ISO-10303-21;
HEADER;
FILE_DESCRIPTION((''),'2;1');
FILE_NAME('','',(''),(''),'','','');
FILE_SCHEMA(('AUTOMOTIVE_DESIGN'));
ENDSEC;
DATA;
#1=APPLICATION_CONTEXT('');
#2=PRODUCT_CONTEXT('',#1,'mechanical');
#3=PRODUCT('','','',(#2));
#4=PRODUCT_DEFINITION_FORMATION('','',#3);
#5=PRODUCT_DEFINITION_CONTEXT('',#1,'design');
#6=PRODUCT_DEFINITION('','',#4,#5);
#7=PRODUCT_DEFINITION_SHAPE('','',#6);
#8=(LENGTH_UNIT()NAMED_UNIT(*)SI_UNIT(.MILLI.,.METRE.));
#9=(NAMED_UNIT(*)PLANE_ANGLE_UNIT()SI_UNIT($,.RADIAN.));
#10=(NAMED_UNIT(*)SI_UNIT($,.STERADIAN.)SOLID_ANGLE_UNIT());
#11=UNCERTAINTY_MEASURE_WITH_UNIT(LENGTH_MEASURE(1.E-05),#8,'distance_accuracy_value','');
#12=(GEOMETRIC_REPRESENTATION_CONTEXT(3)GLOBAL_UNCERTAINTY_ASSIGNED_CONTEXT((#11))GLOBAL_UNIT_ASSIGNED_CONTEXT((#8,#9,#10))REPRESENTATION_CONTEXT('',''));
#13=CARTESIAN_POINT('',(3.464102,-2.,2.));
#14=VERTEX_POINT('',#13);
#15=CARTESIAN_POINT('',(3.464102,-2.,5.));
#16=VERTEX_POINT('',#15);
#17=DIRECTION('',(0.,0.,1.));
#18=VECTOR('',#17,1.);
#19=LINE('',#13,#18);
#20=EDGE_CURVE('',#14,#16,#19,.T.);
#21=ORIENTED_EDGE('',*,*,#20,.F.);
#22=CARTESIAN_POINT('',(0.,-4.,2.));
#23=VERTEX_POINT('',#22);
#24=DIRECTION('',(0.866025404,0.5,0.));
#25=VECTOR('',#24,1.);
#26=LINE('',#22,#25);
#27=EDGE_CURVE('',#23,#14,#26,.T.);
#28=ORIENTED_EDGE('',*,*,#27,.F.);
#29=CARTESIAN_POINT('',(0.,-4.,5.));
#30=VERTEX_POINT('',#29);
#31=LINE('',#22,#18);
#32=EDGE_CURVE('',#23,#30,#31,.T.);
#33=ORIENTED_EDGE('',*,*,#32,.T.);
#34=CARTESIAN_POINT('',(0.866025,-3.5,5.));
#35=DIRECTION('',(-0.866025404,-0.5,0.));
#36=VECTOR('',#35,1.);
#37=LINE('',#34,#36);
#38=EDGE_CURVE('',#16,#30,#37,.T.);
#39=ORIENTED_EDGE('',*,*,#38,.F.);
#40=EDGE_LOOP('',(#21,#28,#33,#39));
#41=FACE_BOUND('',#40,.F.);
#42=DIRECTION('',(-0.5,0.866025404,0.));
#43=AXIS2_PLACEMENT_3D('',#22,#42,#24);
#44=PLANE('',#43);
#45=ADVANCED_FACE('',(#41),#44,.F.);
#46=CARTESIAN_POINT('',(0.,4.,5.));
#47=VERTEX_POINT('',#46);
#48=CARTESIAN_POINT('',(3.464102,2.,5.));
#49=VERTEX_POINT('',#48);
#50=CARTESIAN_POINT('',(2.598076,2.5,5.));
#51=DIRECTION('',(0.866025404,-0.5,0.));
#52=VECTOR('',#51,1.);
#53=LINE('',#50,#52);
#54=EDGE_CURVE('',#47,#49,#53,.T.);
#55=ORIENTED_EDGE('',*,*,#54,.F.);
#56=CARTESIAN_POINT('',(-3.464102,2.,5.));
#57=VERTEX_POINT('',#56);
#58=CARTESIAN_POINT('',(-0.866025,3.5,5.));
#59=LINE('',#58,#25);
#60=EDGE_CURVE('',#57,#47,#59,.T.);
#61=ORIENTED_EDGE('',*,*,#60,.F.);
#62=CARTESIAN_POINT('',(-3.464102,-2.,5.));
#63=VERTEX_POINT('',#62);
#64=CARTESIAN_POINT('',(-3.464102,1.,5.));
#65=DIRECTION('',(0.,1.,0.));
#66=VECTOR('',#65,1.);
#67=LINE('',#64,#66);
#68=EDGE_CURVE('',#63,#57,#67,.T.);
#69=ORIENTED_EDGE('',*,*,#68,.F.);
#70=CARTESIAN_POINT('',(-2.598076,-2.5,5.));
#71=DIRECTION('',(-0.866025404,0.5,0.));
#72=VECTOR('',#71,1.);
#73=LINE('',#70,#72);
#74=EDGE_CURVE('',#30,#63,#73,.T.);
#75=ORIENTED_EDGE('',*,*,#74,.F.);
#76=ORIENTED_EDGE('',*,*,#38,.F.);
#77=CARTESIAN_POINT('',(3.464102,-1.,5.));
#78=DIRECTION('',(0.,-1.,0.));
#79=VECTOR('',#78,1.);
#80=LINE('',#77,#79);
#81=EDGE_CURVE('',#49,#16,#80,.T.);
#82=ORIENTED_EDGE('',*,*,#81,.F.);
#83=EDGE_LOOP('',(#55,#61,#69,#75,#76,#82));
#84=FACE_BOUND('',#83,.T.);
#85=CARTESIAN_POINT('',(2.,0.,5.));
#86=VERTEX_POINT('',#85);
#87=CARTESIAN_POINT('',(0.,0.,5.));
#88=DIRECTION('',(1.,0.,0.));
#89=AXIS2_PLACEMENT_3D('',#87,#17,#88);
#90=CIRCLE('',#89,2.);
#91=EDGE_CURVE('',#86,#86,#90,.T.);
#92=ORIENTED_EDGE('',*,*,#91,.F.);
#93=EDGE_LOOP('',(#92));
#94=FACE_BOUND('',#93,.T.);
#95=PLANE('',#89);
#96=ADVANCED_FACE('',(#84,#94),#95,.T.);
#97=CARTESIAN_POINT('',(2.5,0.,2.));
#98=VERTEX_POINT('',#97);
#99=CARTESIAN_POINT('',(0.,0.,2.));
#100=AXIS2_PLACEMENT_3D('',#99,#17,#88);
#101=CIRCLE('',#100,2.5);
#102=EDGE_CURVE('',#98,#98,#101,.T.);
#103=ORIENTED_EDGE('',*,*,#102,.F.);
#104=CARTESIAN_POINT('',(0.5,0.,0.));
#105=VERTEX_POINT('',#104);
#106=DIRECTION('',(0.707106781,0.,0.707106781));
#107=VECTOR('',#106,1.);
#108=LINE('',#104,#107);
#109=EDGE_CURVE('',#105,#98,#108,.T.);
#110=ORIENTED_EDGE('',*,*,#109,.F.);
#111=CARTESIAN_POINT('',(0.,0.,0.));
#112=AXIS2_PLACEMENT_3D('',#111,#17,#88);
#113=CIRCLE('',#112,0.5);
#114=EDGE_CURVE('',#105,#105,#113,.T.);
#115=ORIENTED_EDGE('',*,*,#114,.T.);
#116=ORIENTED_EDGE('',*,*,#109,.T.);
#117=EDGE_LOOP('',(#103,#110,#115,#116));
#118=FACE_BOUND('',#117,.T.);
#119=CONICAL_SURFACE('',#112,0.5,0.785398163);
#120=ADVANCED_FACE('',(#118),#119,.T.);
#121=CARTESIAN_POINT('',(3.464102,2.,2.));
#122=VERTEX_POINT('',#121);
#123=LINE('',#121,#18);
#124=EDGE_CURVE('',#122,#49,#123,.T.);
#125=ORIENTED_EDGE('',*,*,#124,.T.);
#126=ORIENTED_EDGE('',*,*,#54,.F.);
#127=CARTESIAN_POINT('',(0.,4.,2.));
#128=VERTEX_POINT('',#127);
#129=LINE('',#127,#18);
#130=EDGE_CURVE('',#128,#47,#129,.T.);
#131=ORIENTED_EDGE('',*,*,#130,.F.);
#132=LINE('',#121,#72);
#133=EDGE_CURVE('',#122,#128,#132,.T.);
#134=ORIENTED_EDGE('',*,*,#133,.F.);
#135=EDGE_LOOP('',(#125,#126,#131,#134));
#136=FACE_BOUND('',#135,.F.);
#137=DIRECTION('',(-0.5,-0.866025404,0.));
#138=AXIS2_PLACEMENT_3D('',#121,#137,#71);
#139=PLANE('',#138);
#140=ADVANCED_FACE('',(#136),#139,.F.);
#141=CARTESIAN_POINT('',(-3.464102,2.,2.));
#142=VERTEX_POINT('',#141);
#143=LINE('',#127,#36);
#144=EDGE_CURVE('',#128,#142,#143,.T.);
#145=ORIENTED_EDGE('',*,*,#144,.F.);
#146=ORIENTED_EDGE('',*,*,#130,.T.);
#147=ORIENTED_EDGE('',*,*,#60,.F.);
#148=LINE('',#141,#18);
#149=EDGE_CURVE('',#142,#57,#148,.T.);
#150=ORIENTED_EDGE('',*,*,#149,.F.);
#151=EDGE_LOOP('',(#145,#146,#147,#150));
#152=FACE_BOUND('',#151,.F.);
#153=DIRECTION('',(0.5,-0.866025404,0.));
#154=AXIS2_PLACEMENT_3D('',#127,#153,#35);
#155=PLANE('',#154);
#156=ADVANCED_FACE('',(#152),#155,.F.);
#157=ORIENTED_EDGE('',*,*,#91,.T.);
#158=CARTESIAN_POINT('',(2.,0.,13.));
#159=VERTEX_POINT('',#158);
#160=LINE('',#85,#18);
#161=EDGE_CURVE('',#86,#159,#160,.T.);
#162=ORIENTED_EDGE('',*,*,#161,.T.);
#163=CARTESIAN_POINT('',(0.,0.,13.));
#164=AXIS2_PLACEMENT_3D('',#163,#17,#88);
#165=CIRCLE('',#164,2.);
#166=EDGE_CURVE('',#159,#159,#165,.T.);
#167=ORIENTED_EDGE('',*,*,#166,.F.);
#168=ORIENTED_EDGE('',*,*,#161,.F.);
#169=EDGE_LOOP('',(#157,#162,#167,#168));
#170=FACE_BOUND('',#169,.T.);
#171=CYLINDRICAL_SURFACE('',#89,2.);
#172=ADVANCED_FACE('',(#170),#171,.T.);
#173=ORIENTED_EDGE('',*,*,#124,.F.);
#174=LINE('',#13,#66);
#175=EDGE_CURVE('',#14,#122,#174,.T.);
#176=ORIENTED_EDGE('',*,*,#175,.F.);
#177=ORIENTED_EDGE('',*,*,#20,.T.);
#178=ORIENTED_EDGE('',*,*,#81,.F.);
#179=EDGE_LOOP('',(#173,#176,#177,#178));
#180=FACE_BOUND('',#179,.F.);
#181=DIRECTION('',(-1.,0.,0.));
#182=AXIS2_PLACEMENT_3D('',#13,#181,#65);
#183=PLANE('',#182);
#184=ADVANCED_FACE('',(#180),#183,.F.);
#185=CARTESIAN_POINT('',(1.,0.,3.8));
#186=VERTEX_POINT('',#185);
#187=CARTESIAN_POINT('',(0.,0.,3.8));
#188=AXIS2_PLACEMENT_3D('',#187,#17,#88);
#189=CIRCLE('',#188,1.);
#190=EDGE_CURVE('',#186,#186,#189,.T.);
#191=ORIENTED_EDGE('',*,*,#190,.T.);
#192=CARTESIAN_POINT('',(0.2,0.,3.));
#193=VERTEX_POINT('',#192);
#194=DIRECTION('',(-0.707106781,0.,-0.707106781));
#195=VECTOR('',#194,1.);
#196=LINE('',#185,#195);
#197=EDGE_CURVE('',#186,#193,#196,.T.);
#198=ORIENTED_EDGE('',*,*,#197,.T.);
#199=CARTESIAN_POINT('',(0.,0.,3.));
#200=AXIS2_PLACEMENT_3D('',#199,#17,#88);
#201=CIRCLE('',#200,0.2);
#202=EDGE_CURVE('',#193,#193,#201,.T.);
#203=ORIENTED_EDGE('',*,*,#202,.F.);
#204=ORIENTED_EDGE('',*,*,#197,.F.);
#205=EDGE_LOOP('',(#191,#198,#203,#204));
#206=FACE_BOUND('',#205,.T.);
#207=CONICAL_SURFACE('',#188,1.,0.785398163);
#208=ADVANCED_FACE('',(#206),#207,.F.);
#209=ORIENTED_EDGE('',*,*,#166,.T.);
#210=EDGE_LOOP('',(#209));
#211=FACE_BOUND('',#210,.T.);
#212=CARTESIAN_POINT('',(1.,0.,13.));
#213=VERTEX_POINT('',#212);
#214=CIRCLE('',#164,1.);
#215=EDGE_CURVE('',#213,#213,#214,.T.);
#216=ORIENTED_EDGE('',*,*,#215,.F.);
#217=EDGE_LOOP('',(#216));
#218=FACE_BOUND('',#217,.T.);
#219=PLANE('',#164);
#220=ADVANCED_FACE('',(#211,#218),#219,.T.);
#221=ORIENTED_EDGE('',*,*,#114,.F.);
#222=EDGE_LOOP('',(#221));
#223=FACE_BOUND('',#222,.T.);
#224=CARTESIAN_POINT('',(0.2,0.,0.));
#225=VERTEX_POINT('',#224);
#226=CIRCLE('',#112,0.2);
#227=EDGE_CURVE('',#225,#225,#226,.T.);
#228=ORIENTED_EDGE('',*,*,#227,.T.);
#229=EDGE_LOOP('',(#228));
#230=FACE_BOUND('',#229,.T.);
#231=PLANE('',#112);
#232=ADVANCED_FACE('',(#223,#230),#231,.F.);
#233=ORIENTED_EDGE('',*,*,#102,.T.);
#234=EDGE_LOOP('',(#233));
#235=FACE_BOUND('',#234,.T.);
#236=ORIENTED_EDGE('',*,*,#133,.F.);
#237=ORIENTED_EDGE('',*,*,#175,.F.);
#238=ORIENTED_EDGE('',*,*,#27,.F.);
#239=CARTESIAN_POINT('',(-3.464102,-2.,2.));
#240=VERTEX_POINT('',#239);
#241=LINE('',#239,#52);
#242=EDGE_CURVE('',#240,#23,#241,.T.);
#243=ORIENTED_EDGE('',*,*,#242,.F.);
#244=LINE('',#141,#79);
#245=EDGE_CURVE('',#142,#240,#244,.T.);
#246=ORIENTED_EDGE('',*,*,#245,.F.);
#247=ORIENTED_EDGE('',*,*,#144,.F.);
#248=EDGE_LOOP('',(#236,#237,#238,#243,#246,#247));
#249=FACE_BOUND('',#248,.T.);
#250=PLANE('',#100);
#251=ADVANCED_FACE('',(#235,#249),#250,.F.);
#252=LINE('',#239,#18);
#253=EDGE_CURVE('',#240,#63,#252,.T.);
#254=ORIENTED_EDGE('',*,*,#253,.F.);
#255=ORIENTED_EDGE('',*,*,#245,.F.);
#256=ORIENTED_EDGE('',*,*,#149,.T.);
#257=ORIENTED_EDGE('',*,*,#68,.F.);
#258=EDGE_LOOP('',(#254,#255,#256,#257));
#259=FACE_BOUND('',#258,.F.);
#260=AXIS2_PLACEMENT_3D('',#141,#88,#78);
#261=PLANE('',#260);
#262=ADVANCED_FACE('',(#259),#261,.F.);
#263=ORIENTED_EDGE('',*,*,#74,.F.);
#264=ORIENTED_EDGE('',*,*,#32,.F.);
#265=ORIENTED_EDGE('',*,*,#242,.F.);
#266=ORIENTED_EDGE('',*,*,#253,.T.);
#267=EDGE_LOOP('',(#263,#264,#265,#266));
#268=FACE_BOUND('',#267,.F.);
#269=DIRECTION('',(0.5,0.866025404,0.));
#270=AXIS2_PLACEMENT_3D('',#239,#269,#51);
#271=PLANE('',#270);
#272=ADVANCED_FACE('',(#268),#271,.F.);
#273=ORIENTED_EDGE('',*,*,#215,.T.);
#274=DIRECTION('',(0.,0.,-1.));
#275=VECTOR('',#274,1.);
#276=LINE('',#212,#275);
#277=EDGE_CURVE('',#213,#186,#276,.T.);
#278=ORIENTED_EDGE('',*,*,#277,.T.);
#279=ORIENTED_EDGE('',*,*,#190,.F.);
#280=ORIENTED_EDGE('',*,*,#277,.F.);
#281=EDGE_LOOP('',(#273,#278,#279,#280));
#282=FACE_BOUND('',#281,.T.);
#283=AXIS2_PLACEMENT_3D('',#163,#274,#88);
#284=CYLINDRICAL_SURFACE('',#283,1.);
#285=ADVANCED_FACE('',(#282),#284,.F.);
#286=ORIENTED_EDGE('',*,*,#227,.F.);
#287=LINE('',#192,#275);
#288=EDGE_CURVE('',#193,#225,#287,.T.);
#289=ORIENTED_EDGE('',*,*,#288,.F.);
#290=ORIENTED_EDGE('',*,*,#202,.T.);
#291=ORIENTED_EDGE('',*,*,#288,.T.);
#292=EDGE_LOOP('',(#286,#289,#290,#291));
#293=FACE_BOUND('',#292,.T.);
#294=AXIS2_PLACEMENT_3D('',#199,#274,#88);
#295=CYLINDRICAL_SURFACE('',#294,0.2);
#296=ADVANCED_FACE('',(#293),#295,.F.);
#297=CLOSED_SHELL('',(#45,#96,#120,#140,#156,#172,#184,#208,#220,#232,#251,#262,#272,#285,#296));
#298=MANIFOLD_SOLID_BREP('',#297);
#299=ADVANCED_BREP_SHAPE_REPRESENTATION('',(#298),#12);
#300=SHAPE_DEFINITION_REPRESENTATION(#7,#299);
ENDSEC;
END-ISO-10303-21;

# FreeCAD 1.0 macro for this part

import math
import FreeCAD as App
import Part
import Sketcher
Q = App.Units.Quantity

doc = App.newDocument("Part")
body = doc.addObject("PartDesign::Body", "Body")

# Sketch on XZ plane
sketch1 = doc.addObject("Sketcher::SketchObject", "Sketch")
body.addObject(sketch1)
sketch1.AttachmentSupport = (doc.XZ_Plane, [""])
sketch1.MapMode = "FlatFace"
sketch1.addGeometry([
    Part.LineSegment(App.Vector(0.2, 3, 0), App.Vector(0.2, 0, 0)),  # 0
    Part.LineSegment(App.Vector(0.2, 0, 0), App.Vector(0.5, 0, 0)),  # 1
    Part.LineSegment(App.Vector(0.5, 0, 0), App.Vector(2.5, 2, 0)),  # 2
    Part.LineSegment(App.Vector(2.5, 2, 0), App.Vector(4, 2, 0)),  # 3
    Part.LineSegment(App.Vector(4, 2, 0), App.Vector(4, 5, 0)),  # 4
    Part.LineSegment(App.Vector(4, 5, 0), App.Vector(2, 5, 0)),  # 5
    Part.LineSegment(App.Vector(2, 5, 0), App.Vector(2, 13, 0)),  # 6
    Part.LineSegment(App.Vector(2, 13, 0), App.Vector(1, 13, 0)),  # 7
    Part.LineSegment(App.Vector(1, 13, 0), App.Vector(1, 3.8, 0)),  # 8
    Part.LineSegment(App.Vector(1, 3.8, 0), App.Vector(0.2, 3, 0)),  # 9
], False)
sketch1.addConstraint([
    Sketcher.Constraint("Coincident", 0, 2, 1, 1),
    Sketcher.Constraint("Coincident", 1, 2, 2, 1),
    Sketcher.Constraint("Coincident", 2, 2, 3, 1),
    Sketcher.Constraint("Coincident", 3, 2, 4, 1),
    Sketcher.Constraint("Coincident", 4, 2, 5, 1),
    Sketcher.Constraint("Coincident", 5, 2, 6, 1),
    Sketcher.Constraint("Coincident", 6, 2, 7, 1),
    Sketcher.Constraint("Coincident", 7, 2, 8, 1),
    Sketcher.Constraint("Coincident", 8, 2, 9, 1),
    Sketcher.Constraint("Coincident", 9, 2, 0, 1),
    Sketcher.Constraint("Vertical", 0),
    Sketcher.Constraint("Horizontal", 1),
    Sketcher.Constraint("Horizontal", 3),
    Sketcher.Constraint("Vertical", 4),
    Sketcher.Constraint("Horizontal", 5),
    Sketcher.Constraint("Vertical", 6),
    Sketcher.Constraint("Horizontal", 7),
    Sketcher.Constraint("Vertical", 8),
    Sketcher.Constraint("PointOnObject", 0, 2, -1),
    Sketcher.Constraint("Parallel", 2, 9),
    Sketcher.Constraint("Equal", 0, 4),
    Sketcher.Constraint("DistanceX", 5, 2, 5, 1, 2.0),
    Sketcher.Constraint("DistanceX", 7, 2, 7, 1, 1.0),
    Sketcher.Constraint("DistanceY", 0, 2, 0, 1, 3.0),
    Sketcher.Constraint("DistanceY", 6, 1, 6, 2, 8.0),
    Sketcher.Constraint("Angle", 2, Q("45 deg")),
    Sketcher.Constraint("DistanceX", 1, 1, 1, 2, 0.3),
    Sketcher.Constraint("DistanceX", 3, 1, 3, 2, 1.5),
    Sketcher.Constraint("DistanceY", -1, 1, 2, 2, 2.0),
    Sketcher.Constraint("DistanceX", -1, 1, 3, 2, 4.0),
])
revolution = doc.addObject("PartDesign::Revolution", "Revolution")
body.addObject(revolution)
revolution.Profile = sketch1
revolution.ReferenceAxis = (sketch1, ["V_Axis"])
revolution.Angle = 360

# Sketch on XY plane
sketch2 = doc.addObject("Sketcher::SketchObject", "Sketch001")
body.addObject(sketch2)
sketch2.AttachmentSupport = (doc.XY_Plane, [""])
sketch2.MapMode = "FlatFace"
sketch2.AttachmentOffset = App.Placement(App.Vector(0, 0, 2), App.Rotation())
sketch2.addGeometry([
    Part.LineSegment(App.Vector(-3.5, -2, 0), App.Vector(0, -4, 0)),  # 0
    Part.ArcOfCircle(Part.Circle(App.Vector(0, 0, 0), App.Vector(0, 0, 1), 4), math.radians(-150), math.radians(-90)),  # 1
    Part.LineSegment(App.Vector(0, -4, 0), App.Vector(3.5, -2, 0)),  # 2
    Part.ArcOfCircle(Part.Circle(App.Vector(0, 0, 0), App.Vector(0, 0, 1), 4), math.radians(-90), math.radians(-30)),  # 3
    Part.ArcOfCircle(Part.Circle(App.Vector(0, 0, 0), App.Vector(0, 0, 1), 4), math.radians(-30), math.radians(0)),  # 4
    Part.LineSegment(App.Vector(3.5, -2, 0), App.Vector(3.5, 2, 0)),  # 5
    Part.ArcOfCircle(Part.Circle(App.Vector(0, 0, 0), App.Vector(0, 0, 1), 4), math.radians(0), math.radians(30)),  # 6
    Part.ArcOfCircle(Part.Circle(App.Vector(0, 0, 0), App.Vector(0, 0, 1), 4), math.radians(30), math.radians(90)),  # 7
    Part.LineSegment(App.Vector(3.5, 2, 0), App.Vector(0, 4, 0)),  # 8
    Part.ArcOfCircle(Part.Circle(App.Vector(0, 0, 0), App.Vector(0, 0, 1), 4), math.radians(90), math.radians(150)),  # 9
    Part.LineSegment(App.Vector(0, 4, 0), App.Vector(-3.5, 2, 0)),  # 10
    Part.LineSegment(App.Vector(-3.5, 2, 0), App.Vector(-3.5, -2, 0)),  # 11
    Part.ArcOfCircle(Part.Circle(App.Vector(0, 0, 0), App.Vector(0, 0, 1), 4), math.radians(150), math.radians(210)),  # 12
], False)
sketch2.addConstraint([
    Sketcher.Constraint("Coincident", 0, 1, 1, 1),
    Sketcher.Constraint("Coincident", 1, 2, 0, 2),
    Sketcher.Constraint("Coincident", 2, 1, 3, 1),
    Sketcher.Constraint("Coincident", 3, 2, 2, 2),
    Sketcher.Constraint("Coincident", 4, 1, 5, 1),
    Sketcher.Constraint("Coincident", 5, 2, 6, 2),
    Sketcher.Constraint("Tangent", 6, 1, 4, 2),
    Sketcher.Constraint("Coincident", 7, 1, 8, 1),
    Sketcher.Constraint("Coincident", 8, 2, 7, 2),
    Sketcher.Constraint("Coincident", 9, 1, 10, 1),
    Sketcher.Constraint("Coincident", 10, 2, 9, 2),
    Sketcher.Constraint("Coincident", 11, 1, 12, 1),
    Sketcher.Constraint("Coincident", 12, 2, 11, 2),
    Sketcher.Constraint("Vertical", 5),
    Sketcher.Constraint("Vertical", 11),
    Sketcher.Constraint("Coincident", 1, 3, -1, 1),
    Sketcher.Constraint("Coincident", 3, 3, -1, 1),
    Sketcher.Constraint("Coincident", 4, 3, -1, 1),
    Sketcher.Constraint("Coincident", 7, 3, -1, 1),
    Sketcher.Constraint("Coincident", 9, 3, -1, 1),
    Sketcher.Constraint("Coincident", 12, 3, -1, 1),
    Sketcher.Constraint("Coincident", 2, 1, 1, 2),
    Sketcher.Constraint("Coincident", 4, 1, 3, 2),
    Sketcher.Constraint("Coincident", 7, 1, 5, 2),
    Sketcher.Constraint("Coincident", 9, 1, 8, 2),
    Sketcher.Constraint("Coincident", 11, 1, 10, 2),
    Sketcher.Constraint("Coincident", 12, 2, 0, 1),
    Sketcher.Constraint("PointOnObject", 1, 2, -2),
    Sketcher.Constraint("PointOnObject", 6, 1, -1),
    Sketcher.Constraint("PointOnObject", 8, 2, -2),
    Sketcher.Constraint("Parallel", 0, 8),
    Sketcher.Constraint("Radius", 1, 4.0),
    Sketcher.Constraint("DistanceY", 5, 1, 5, 2, 4.0),
])
pocket1 = doc.addObject("PartDesign::Pocket", "Pocket")
body.addObject(pocket1)
pocket1.Profile = sketch2
pocket1.Length = 25
pocket1.Reversed = True

doc.recompute()
